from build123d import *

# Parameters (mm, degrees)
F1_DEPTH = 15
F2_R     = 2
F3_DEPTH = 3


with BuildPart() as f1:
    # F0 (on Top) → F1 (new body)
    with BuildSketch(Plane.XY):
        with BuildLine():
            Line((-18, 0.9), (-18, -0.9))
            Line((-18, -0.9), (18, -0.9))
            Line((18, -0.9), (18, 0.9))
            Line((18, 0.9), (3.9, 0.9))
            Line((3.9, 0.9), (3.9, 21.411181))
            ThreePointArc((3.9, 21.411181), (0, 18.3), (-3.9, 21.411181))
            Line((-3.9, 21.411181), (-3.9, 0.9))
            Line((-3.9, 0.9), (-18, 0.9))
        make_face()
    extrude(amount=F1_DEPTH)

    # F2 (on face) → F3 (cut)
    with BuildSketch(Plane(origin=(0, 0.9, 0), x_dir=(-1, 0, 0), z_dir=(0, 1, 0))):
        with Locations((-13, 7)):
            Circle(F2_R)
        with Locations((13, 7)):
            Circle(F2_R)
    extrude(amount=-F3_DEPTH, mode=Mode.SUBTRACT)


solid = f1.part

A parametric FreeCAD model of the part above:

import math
import FreeCAD as App
import Part
import Sketcher
from FreeCAD import Vector
Q = App.Units.Quantity

doc = App.newDocument("Part")
params = doc.addObject("Spreadsheet::Sheet", "Params")
for row, (alias, value) in enumerate([
    ("sketch1_radius", "4 mm"),
    ("sketch1_width", "36 mm"),
    ("sketch1_width2", "14.1 mm"),
    ("sketch1_height", "1.8 mm"),
    ("pad1_length", "15 mm"),
    ("sketch2_diameter", "4 mm"),
    ("pocket1_length", "3 mm"),
], start=1):
    params.set(f"A{row}", alias)
    params.set(f"B{row}", "=" + value)
    params.setAlias(f"B{row}", alias)

body = doc.addObject("PartDesign::Body", "Body")

sketch1 = body.newObject("Sketcher::SketchObject", "Sketch")
sketch1.AttachmentSupport = (doc.getObject("XY_Plane"), [""])
sketch1.MapMode = "FlatFace"
sketch1.addGeometry(Part.LineSegment(Vector(-18, 0.9, 0), Vector(-18, -0.9, 0)), False)
sketch1.addGeometry(Part.LineSegment(Vector(-18, -0.9, 0), Vector(18, -0.9, 0)), False)
sketch1.addGeometry(Part.LineSegment(Vector(18, -0.9, 0), Vector(18, 0.9, 0)), False)
sketch1.addGeometry(Part.LineSegment(Vector(18, 0.9, 0), Vector(3.9, 0.9, 0)), False)
sketch1.addGeometry(Part.LineSegment(Vector(3.9, 0.9, 0), Vector(3.9, 21.4, 0)), False)
sketch1.addGeometry(Part.ArcOfCircle(Part.Circle(Vector(0, 22.3, 0), Vector(0, 0, 1), 4), math.radians(-167), math.radians(-13)), False)
sketch1.addGeometry(Part.LineSegment(Vector(-3.9, 21.4, 0), Vector(-3.9, 0.9, 0)), False)
sketch1.addGeometry(Part.LineSegment(Vector(-3.9, 0.9, 0), Vector(-18, 0.9, 0)), False)
sketch1.addConstraint(Sketcher.Constraint("Coincident", 0, 2, 1, 1))
sketch1.addConstraint(Sketcher.Constraint("Coincident", 1, 2, 2, 1))
sketch1.addConstraint(Sketcher.Constraint("Coincident", 2, 2, 3, 1))
sketch1.addConstraint(Sketcher.Constraint("Coincident", 3, 2, 4, 1))
sketch1.addConstraint(Sketcher.Constraint("Coincident", 4, 2, 5, 2))
sketch1.addConstraint(Sketcher.Constraint("Coincident", 5, 1, 6, 1))
sketch1.addConstraint(Sketcher.Constraint("Coincident", 6, 2, 7, 1))
sketch1.addConstraint(Sketcher.Constraint("Coincident", 7, 2, 0, 1))
sketch1.addConstraint(Sketcher.Constraint("Vertical", 0))
sketch1.addConstraint(Sketcher.Constraint("Horizontal", 1))
sketch1.addConstraint(Sketcher.Constraint("Vertical", 2))
sketch1.addConstraint(Sketcher.Constraint("Horizontal", 3))
sketch1.addConstraint(Sketcher.Constraint("Vertical", 4))
sketch1.addConstraint(Sketcher.Constraint("Vertical", 6))
sketch1.addConstraint(Sketcher.Constraint("Horizontal", 7))
sketch1.addConstraint(Sketcher.Constraint("Symmetric", 0, 2, 2, 2, -1, 1))
sketch1.addConstraint(Sketcher.Constraint("Symmetric", 4, 2, 5, 1, -2))
sketch1.addConstraint(Sketcher.Constraint("Horizontal", 3, 2, 6, 2))
sketch1.addConstraint(Sketcher.Constraint("Radius", 5, Q("4 mm")))
sketch1.addConstraint(Sketcher.Constraint("DistanceX", 1, 1, 1, 2, Q("36 mm")))
sketch1.addConstraint(Sketcher.Constraint("DistanceX", 3, 2, 3, 1, Q("14.1 mm")))
sketch1.addConstraint(Sketcher.Constraint("DistanceY", 0, 2, 0, 1, Q("1.8 mm")))
sketch1.addConstraint(Sketcher.Constraint("DistanceY", -1, 1, 5, 3, Q("22.3 mm")))
sketch1.setExpression("Constraints[18]", "Params.sketch1_radius")
sketch1.setExpression("Constraints[19]", "Params.sketch1_width")
sketch1.setExpression("Constraints[20]", "Params.sketch1_width2")
sketch1.setExpression("Constraints[21]", "Params.sketch1_height")
pad1 = body.newObject("PartDesign::Pad", "Pad")
pad1.Profile = sketch1
pad1.setExpression("Length", "Params.pad1_length")

sketch2 = body.newObject("Sketcher::SketchObject", "Sketch001")
sketch2.AttachmentSupport = (doc.getObject("XZ_Plane"), [""])
sketch2.MapMode = "FlatFace"
sketch2.AttachmentOffset = App.Placement(Vector(0, 0, -0.9), App.Rotation())
sketch2.addGeometry(Part.Circle(Vector(13, 7, 0), Vector(0, 0, 1), 2), False)
sketch2.addGeometry(Part.Circle(Vector(-13, 7, 0), Vector(0, 0, 1), 2), False)
sketch2.addConstraint(Sketcher.Constraint("Equal", 0, 1))
sketch2.addConstraint(Sketcher.Constraint("Symmetric", 0, 3, 1, 3, -2))
sketch2.addConstraint(Sketcher.Constraint("Diameter", 0, Q("4 mm")))
sketch2.addConstraint(Sketcher.Constraint("DistanceX", -1, 1, 0, 3, Q("13 mm")))
sketch2.addConstraint(Sketcher.Constraint("DistanceY", -1, 1, 0, 3, Q("7 mm")))
sketch2.setExpression("Constraints[2]", "Params.sketch2_diameter")
pocket1 = body.newObject("PartDesign::Pocket", "Pocket")
pocket1.Profile = sketch2
pocket1.setExpression("Length", "Params.pocket1_length")
pocket1.Reversed = True

doc.recompute()
